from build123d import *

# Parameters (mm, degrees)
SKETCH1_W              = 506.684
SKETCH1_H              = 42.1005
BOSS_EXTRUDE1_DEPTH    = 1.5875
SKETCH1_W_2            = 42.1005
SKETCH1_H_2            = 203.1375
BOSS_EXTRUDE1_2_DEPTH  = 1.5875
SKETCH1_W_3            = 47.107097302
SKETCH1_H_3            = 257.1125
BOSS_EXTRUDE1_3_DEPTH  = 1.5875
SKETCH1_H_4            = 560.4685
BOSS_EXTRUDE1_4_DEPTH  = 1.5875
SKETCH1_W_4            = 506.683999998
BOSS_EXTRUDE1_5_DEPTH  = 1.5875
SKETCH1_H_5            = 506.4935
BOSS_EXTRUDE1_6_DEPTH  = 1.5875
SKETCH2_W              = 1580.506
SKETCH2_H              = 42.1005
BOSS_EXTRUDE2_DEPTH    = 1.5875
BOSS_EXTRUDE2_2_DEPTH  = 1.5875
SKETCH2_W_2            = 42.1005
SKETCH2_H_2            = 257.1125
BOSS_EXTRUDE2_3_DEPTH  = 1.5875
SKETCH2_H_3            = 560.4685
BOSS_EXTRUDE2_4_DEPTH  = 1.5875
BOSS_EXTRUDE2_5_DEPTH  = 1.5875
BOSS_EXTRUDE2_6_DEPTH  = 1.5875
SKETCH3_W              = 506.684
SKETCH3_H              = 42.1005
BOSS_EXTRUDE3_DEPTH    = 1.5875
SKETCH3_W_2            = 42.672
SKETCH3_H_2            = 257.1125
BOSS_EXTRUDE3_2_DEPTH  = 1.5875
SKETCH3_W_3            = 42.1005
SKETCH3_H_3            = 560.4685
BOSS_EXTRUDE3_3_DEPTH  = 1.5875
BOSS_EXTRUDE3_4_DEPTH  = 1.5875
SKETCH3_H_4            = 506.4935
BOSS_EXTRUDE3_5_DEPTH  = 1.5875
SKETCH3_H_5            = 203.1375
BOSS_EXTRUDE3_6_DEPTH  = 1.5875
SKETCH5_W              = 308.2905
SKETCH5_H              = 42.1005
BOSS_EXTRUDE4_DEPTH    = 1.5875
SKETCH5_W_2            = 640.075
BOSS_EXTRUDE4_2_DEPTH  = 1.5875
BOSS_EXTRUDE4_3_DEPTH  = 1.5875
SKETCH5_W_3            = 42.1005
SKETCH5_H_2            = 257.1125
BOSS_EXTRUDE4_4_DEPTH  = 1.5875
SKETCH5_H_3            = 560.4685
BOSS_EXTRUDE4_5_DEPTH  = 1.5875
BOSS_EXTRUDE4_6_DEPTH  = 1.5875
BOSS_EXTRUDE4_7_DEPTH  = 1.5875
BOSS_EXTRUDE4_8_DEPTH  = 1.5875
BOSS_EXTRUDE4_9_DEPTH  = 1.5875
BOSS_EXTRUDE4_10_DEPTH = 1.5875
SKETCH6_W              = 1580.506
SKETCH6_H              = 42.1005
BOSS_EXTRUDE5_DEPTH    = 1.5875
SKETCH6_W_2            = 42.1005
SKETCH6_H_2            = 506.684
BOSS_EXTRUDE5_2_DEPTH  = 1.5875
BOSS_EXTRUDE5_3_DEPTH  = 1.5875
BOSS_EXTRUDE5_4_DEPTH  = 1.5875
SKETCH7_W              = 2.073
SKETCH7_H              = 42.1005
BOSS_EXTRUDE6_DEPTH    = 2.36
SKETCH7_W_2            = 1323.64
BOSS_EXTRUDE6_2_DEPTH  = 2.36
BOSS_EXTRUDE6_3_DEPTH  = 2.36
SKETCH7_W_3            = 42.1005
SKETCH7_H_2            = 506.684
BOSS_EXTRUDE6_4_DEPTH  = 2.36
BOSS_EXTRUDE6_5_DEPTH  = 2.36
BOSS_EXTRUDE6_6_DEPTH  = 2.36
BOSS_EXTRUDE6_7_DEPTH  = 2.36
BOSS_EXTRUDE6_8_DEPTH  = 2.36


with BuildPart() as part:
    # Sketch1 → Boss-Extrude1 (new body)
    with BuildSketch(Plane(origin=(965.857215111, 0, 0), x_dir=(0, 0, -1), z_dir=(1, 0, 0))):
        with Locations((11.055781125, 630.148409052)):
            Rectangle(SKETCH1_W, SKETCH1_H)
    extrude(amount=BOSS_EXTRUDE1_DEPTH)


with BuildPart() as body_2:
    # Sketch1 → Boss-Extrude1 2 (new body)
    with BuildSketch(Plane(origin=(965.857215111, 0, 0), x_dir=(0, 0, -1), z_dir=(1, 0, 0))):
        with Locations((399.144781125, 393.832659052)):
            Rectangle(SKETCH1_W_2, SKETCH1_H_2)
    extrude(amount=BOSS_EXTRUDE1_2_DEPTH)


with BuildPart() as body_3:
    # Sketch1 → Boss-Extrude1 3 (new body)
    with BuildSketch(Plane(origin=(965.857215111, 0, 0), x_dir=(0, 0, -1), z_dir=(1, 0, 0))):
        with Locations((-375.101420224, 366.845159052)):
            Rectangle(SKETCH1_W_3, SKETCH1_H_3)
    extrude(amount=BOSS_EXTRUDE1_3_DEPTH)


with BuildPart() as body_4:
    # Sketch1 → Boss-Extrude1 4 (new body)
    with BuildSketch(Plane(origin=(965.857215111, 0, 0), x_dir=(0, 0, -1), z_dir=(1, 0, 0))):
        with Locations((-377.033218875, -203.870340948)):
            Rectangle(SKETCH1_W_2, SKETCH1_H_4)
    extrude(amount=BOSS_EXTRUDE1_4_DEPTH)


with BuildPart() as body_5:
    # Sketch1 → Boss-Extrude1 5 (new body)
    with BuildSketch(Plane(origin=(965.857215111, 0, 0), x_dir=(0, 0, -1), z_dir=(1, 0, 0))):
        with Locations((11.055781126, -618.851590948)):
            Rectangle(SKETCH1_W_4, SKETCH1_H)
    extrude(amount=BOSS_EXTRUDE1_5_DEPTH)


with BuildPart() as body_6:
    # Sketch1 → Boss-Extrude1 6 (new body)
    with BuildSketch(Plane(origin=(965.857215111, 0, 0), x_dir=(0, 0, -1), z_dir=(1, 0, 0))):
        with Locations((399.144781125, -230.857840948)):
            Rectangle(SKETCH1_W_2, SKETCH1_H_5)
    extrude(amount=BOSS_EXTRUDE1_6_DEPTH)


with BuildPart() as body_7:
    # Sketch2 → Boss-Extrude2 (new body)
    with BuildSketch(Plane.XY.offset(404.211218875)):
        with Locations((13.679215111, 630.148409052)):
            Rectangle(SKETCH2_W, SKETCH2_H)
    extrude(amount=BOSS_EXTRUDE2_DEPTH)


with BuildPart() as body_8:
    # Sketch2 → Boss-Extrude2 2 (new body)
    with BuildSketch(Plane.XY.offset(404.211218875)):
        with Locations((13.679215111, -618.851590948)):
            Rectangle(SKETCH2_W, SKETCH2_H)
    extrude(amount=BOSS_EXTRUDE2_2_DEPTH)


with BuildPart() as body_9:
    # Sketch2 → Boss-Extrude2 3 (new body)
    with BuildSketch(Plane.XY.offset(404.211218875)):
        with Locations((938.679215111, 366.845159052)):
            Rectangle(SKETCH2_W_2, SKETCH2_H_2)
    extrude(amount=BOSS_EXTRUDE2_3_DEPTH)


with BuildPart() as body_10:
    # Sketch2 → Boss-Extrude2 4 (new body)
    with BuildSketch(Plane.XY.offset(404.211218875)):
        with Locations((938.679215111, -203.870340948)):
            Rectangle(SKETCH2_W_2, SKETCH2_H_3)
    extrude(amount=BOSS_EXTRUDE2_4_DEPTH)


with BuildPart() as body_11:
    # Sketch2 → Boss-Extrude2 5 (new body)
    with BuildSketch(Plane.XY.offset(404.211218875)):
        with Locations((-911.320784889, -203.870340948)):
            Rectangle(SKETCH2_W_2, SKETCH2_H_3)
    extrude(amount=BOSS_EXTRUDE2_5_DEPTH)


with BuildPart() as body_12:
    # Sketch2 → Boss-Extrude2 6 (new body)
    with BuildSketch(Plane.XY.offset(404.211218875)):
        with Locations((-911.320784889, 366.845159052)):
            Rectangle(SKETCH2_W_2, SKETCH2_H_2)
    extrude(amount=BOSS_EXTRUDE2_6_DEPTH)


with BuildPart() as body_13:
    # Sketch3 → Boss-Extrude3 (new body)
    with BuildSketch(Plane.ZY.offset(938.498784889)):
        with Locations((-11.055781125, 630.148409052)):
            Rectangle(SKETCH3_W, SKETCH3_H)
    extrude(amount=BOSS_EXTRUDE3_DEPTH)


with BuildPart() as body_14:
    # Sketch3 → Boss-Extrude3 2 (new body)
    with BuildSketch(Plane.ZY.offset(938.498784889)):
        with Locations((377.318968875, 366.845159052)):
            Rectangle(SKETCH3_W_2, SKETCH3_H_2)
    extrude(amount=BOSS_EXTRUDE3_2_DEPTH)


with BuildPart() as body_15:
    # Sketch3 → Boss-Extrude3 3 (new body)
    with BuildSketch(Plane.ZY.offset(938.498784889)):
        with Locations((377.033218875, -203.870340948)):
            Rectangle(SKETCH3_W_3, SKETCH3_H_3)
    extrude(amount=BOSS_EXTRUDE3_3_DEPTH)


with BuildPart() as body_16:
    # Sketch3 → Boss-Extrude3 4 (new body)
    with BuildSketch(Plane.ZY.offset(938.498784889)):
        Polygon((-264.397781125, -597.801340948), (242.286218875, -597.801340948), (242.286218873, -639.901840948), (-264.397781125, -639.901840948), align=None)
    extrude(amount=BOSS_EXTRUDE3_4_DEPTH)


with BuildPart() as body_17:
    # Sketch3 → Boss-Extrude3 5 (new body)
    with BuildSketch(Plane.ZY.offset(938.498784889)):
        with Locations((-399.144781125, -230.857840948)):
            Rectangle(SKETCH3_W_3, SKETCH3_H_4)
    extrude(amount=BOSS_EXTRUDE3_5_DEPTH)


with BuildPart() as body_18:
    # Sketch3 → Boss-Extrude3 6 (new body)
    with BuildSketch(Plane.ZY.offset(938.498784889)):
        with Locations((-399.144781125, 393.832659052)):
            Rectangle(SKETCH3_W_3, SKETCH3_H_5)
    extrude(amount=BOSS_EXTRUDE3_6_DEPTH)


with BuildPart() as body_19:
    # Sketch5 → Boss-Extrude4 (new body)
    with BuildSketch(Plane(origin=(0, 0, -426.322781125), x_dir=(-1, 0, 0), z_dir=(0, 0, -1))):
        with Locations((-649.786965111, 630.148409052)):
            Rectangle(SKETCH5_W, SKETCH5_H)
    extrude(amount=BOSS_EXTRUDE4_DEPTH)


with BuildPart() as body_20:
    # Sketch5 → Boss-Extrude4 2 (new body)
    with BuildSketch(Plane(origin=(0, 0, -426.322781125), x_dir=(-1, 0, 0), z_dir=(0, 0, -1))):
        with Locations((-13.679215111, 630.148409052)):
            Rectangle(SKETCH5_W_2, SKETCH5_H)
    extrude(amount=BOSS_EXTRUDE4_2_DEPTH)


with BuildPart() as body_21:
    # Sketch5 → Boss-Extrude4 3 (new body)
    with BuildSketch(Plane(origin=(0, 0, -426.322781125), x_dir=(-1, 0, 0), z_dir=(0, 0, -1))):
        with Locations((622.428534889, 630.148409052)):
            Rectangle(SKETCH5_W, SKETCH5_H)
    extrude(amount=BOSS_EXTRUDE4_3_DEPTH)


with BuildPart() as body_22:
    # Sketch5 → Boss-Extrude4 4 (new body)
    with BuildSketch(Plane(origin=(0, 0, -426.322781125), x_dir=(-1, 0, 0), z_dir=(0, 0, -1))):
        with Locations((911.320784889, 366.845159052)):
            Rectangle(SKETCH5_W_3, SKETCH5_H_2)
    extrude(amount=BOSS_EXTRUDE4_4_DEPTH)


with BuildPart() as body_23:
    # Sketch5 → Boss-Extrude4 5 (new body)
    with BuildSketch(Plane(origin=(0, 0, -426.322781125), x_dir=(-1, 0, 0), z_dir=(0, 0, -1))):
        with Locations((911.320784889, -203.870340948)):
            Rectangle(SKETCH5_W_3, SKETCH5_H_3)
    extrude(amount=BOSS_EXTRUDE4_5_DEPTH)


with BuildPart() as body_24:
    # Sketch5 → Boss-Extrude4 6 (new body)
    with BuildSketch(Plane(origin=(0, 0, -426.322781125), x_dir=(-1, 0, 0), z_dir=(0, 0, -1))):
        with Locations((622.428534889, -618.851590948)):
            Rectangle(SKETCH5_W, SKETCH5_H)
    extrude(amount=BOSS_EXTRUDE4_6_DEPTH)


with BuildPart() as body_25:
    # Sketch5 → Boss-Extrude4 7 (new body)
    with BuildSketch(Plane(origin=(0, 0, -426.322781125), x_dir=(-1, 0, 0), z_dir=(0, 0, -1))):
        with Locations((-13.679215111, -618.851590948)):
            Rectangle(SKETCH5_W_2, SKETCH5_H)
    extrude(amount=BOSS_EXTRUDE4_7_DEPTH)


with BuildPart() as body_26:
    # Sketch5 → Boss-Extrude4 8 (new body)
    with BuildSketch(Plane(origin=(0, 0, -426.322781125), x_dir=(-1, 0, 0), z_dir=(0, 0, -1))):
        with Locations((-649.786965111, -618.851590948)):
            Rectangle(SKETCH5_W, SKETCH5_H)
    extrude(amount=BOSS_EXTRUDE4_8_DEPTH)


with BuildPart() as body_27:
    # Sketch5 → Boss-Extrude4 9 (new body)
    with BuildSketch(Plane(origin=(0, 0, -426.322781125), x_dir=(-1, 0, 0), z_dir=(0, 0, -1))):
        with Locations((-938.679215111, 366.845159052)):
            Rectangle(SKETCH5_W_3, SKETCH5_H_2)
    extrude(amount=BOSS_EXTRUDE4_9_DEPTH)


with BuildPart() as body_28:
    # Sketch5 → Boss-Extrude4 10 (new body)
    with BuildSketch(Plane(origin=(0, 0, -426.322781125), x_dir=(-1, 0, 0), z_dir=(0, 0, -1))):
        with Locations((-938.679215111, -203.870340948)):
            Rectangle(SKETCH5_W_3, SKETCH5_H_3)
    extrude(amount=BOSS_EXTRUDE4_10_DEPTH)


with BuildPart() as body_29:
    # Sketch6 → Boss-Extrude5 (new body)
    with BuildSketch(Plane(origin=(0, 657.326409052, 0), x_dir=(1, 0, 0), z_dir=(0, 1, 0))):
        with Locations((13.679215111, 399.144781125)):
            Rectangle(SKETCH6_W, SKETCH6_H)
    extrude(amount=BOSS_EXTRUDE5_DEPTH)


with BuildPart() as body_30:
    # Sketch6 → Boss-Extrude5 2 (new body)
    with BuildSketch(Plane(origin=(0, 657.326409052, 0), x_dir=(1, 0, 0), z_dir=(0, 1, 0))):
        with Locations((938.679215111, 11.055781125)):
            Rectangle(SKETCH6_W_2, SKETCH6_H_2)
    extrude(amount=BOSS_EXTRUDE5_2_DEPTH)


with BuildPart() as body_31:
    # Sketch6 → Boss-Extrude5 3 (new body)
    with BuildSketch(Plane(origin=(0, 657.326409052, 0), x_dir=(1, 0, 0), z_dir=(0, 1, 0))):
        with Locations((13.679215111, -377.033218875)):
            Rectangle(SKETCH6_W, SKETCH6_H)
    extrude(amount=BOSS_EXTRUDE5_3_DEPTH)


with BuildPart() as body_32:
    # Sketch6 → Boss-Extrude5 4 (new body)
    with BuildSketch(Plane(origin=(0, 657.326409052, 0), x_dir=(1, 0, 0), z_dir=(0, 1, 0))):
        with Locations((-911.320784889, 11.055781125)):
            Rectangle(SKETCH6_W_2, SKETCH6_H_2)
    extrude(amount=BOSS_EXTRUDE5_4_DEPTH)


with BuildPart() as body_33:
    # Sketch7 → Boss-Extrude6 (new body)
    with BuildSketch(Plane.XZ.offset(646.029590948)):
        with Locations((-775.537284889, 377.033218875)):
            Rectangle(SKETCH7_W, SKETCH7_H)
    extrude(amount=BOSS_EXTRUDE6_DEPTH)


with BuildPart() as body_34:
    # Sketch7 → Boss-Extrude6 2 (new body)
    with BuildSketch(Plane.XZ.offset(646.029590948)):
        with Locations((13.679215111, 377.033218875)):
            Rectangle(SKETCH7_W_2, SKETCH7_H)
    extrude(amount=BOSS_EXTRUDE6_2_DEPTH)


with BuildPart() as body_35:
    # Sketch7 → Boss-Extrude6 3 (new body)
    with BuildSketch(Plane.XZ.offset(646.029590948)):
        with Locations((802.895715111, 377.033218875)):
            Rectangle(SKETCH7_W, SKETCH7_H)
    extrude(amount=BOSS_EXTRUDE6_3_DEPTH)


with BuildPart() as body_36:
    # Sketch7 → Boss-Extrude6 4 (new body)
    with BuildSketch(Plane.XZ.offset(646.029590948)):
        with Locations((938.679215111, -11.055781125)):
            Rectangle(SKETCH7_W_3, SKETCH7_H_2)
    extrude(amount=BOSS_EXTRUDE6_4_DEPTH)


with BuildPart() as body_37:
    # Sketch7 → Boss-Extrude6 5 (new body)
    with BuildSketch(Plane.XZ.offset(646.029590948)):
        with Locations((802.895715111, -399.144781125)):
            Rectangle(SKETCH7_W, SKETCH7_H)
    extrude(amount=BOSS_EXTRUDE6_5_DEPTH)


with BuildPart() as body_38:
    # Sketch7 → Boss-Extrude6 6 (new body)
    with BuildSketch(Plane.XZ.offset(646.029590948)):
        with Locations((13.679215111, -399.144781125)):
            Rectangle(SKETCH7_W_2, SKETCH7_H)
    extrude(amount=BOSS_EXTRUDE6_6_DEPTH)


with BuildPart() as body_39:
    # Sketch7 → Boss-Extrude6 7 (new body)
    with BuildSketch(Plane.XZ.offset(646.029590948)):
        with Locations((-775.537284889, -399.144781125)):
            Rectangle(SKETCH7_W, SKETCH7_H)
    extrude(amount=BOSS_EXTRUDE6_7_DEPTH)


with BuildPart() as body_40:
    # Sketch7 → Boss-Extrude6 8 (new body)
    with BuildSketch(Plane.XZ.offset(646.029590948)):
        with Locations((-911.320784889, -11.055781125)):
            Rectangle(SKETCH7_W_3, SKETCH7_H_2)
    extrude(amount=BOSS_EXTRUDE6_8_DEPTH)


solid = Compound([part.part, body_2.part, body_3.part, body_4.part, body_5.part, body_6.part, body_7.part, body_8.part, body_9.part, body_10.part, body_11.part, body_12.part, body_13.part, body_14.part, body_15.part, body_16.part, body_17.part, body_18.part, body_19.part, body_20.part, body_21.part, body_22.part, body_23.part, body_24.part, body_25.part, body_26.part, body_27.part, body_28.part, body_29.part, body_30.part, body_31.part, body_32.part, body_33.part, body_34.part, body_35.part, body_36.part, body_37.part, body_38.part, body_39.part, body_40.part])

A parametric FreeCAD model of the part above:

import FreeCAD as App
import Part
import Sketcher

V = App.Vector
Q = App.Units.Quantity


def add_polygon(sketch, points):
    """Adds a closed chain of lines whose ends are joined by coincident constraints."""
    first, n = sketch.GeometryCount, len(points)
    for a, b in zip(points, points[1:] + points[:1]):
        sketch.addGeometry(Part.LineSegment(App.Vector(*a, 0), App.Vector(*b, 0)), False)
    for i in range(n):
        sketch.addConstraint(Sketcher.Constraint("Coincident", first + i, 2, first + (i + 1) % n, 1))

doc = App.newDocument("Part")
body = doc.addObject("PartDesign::Body", "Body")

# Sketch on YZ plane
sketch1 = body.newObject("Sketcher::SketchObject", "Sketch")
sketch1.AttachmentSupport = (doc.getObject("YZ_Plane"), [""])
sketch1.MapMode = "FlatFace"
sketch1.AttachmentOffset = App.Placement(V(0, 0, 965.857215), App.Rotation())
add_polygon(sketch1, [(651.198659, 242.286219), (609.098159, 242.286219), (609.098159, -264.397781), (651.198659, -264.397781)])  # lines 0-3
sketch1.addConstraint([
    Sketcher.Constraint("Horizontal", 0),
    Sketcher.Constraint("Vertical", 1),
    Sketcher.Constraint("Horizontal", 2),
    Sketcher.Constraint("Vertical", 3),
    Sketcher.Constraint("DistanceX", 0, 2, 0, 1, Q("1.6575 in")),
    Sketcher.Constraint("DistanceY", 1, 2, 1, 1, Q("506.684 mm")),
    Sketcher.Constraint("DistanceX", -1, 1, 0, 2, Q("609.098159 mm")),
    Sketcher.Constraint("DistanceY", -1, 1, 0, 2, Q("242.286219 mm")),
])
pad1 = body.newObject("PartDesign::Pad", "Pad")
pad1.Profile = sketch1
pad1.Length = Q("0.0625 in")
body2 = doc.addObject("PartDesign::Body", "Body001")

# Sketch on YZ plane
sketch2 = body2.newObject("Sketcher::SketchObject", "Sketch001")
sketch2.AttachmentSupport = (doc.getObject("YZ_Plane001"), [""])
sketch2.MapMode = "FlatFace"
sketch2.AttachmentOffset = App.Placement(V(0, 0, 965.857215), App.Rotation())
add_polygon(sketch2, [(495.401409, -378.094531), (292.263909, -378.094531), (292.263909, -420.195031), (495.401409, -420.195031)])  # lines 0-3
sketch2.addConstraint([
    Sketcher.Constraint("Horizontal", 0),
    Sketcher.Constraint("Vertical", 1),
    Sketcher.Constraint("Horizontal", 2),
    Sketcher.Constraint("Vertical", 3),
    Sketcher.Constraint("DistanceY", 1, 2, 1, 1, Q("1.6575 in")),
    Sketcher.Constraint("DistanceX", 0, 2, 0, 1, Q("203.1375 mm")),
    Sketcher.Constraint("DistanceX", -1, 1, 0, 2, Q("292.263909 mm")),
    Sketcher.Constraint("DistanceY", 0, 2, -1, 1, Q("378.094531 mm")),
])
pad2 = body2.newObject("PartDesign::Pad", "Pad001")
pad2.Profile = sketch2
pad2.Length = Q("0.0625 in")
body3 = doc.addObject("PartDesign::Body", "Body002")

# Sketch on YZ plane
sketch3 = body3.newObject("Sketcher::SketchObject", "Sketch002")
sketch3.AttachmentSupport = (doc.getObject("YZ_Plane002"), [""])
sketch3.MapMode = "FlatFace"
sketch3.AttachmentOffset = App.Placement(V(0, 0, 965.857215), App.Rotation())
add_polygon(sketch3, [(495.401409, 398.654969), (238.288909, 398.654969), (238.288909, 351.547872), (495.401409, 351.547872)])  # lines 0-3
sketch3.addConstraint([
    Sketcher.Constraint("Horizontal", 0),
    Sketcher.Constraint("Vertical", 1),
    Sketcher.Constraint("Horizontal", 2),
    Sketcher.Constraint("Vertical", 3),
    Sketcher.Constraint("DistanceX", 0, 2, 0, 1, Q("257.1125 mm")),
    Sketcher.Constraint("DistanceY", 1, 2, 1, 1, Q("47.107097 mm")),
    Sketcher.Constraint("DistanceX", -1, 1, 0, 2, Q("238.288909 mm")),
    Sketcher.Constraint("DistanceY", -1, 1, 0, 2, Q("398.654969 mm")),
])
pad3 = body3.newObject("PartDesign::Pad", "Pad002")
pad3.Profile = sketch3
pad3.Length = Q("0.0625 in")
body4 = doc.addObject("PartDesign::Body", "Body003")

# Sketch on YZ plane
sketch4 = body4.newObject("Sketcher::SketchObject", "Sketch003")
sketch4.AttachmentSupport = (doc.getObject("YZ_Plane003"), [""])
sketch4.MapMode = "FlatFace"
sketch4.AttachmentOffset = App.Placement(V(0, 0, 965.857215), App.Rotation())
add_polygon(sketch4, [(76.363909, 398.083469), (-484.104591, 398.083469), (-484.104591, 355.982969), (76.363909, 355.982969)])  # lines 0-3
sketch4.addConstraint([
    Sketcher.Constraint("Horizontal", 0),
    Sketcher.Constraint("Vertical", 1),
    Sketcher.Constraint("Horizontal", 2),
    Sketcher.Constraint("Vertical", 3),
    Sketcher.Constraint("DistanceY", 1, 2, 1, 1, Q("1.6575 in")),
    Sketcher.Constraint("DistanceX", 0, 2, 0, 1, Q("560.4685 mm")),
    Sketcher.Constraint("DistanceX", 0, 2, -1, 1, Q("484.104591 mm")),
    Sketcher.Constraint("DistanceY", -1, 1, 0, 2, Q("398.083469 mm")),
])
pad4 = body4.newObject("PartDesign::Pad", "Pad003")
pad4.Profile = sketch4
pad4.Length = Q("0.0625 in")
body5 = doc.addObject("PartDesign::Body", "Body004")

# Sketch on YZ plane
sketch5 = body5.newObject("Sketcher::SketchObject", "Sketch004")
sketch5.AttachmentSupport = (doc.getObject("YZ_Plane004"), [""])
sketch5.MapMode = "FlatFace"
sketch5.AttachmentOffset = App.Placement(V(0, 0, 965.857215), App.Rotation())
add_polygon(sketch5, [(-597.801341, 242.286219), (-639.901841, 242.286219), (-639.901841, -264.397781), (-597.801341, -264.397781)])  # lines 0-3
sketch5.addConstraint([
    Sketcher.Constraint("Horizontal", 0),
    Sketcher.Constraint("Vertical", 1),
    Sketcher.Constraint("Horizontal", 2),
    Sketcher.Constraint("Vertical", 3),
    Sketcher.Constraint("DistanceX", 0, 2, 0, 1, Q("1.6575 in")),
    Sketcher.Constraint("DistanceY", 1, 2, 1, 1, Q("506.684 mm")),
    Sketcher.Constraint("DistanceX", 0, 2, -1, 1, Q("639.901841 mm")),
    Sketcher.Constraint("DistanceY", -1, 1, 0, 2, Q("242.286219 mm")),
])
pad5 = body5.newObject("PartDesign::Pad", "Pad004")
pad5.Profile = sketch5
pad5.Length = Q("0.0625 in")
body6 = doc.addObject("PartDesign::Body", "Body005")

# Sketch on YZ plane
sketch6 = body6.newObject("Sketcher::SketchObject", "Sketch005")
sketch6.AttachmentSupport = (doc.getObject("YZ_Plane005"), [""])
sketch6.MapMode = "FlatFace"
sketch6.AttachmentOffset = App.Placement(V(0, 0, 965.857215), App.Rotation())
add_polygon(sketch6, [(22.388909, -378.094531), (-484.104591, -378.094531), (-484.104591, -420.195031), (22.388909, -420.195031)])  # lines 0-3
sketch6.addConstraint([
    Sketcher.Constraint("Horizontal", 0),
    Sketcher.Constraint("Vertical", 1),
    Sketcher.Constraint("Horizontal", 2),
    Sketcher.Constraint("Vertical", 3),
    Sketcher.Constraint("DistanceY", 1, 2, 1, 1, Q("1.6575 in")),
    Sketcher.Constraint("DistanceX", 0, 2, 0, 1, Q("506.4935 mm")),
    Sketcher.Constraint("DistanceX", 0, 2, -1, 1, Q("484.104591 mm")),
    Sketcher.Constraint("DistanceY", 0, 2, -1, 1, Q("378.094531 mm")),
])
pad6 = body6.newObject("PartDesign::Pad", "Pad005")
pad6.Profile = sketch6
pad6.Length = Q("0.0625 in")
body7 = doc.addObject("PartDesign::Body", "Body006")

# Sketch on XY plane
sketch7 = body7.newObject("Sketcher::SketchObject", "Sketch006")
sketch7.AttachmentSupport = (doc.getObject("XY_Plane006"), [""])
sketch7.MapMode = "FlatFace"
sketch7.AttachmentOffset = App.Placement(V(0, 0, 404.211219), App.Rotation())
add_polygon(sketch7, [(-776.573785, 651.198659), (-776.573785, 609.098159), (803.932215, 609.098159), (803.932215, 651.198659)])  # lines 0-3
sketch7.addConstraint([
    Sketcher.Constraint("Vertical", 0),
    Sketcher.Constraint("Horizontal", 1),
    Sketcher.Constraint("Vertical", 2),
    Sketcher.Constraint("Horizontal", 3),
    Sketcher.Constraint("DistanceY", 0, 2, 0, 1, Q("1.6575 in")),
    Sketcher.Constraint("DistanceX", 1, 1, 1, 2, Q("1580.506 mm")),
    Sketcher.Constraint("DistanceY", -1, 1, 0, 2, Q("609.098159 mm")),
    Sketcher.Constraint("DistanceX", 0, 2, -1, 1, Q("776.573785 mm")),
])
pad7 = body7.newObject("PartDesign::Pad", "Pad006")
pad7.Profile = sketch7
pad7.Length = Q("0.0625 in")
body8 = doc.addObject("PartDesign::Body", "Body007")

# Sketch on XY plane
sketch8 = body8.newObject("Sketcher::SketchObject", "Sketch007")
sketch8.AttachmentSupport = (doc.getObject("XY_Plane007"), [""])
sketch8.MapMode = "FlatFace"
sketch8.AttachmentOffset = App.Placement(V(0, 0, 404.211219), App.Rotation())
add_polygon(sketch8, [(-776.573785, -597.801341), (-776.573785, -639.901841), (803.932215, -639.901841), (803.932215, -597.801341)])  # lines 0-3
sketch8.addConstraint([
    Sketcher.Constraint("Vertical", 0),
    Sketcher.Constraint("Horizontal", 1),
    Sketcher.Constraint("Vertical", 2),
    Sketcher.Constraint("Horizontal", 3),
    Sketcher.Constraint("DistanceY", 0, 2, 0, 1, Q("1.6575 in")),
    Sketcher.Constraint("DistanceX", 1, 1, 1, 2, Q("1580.506 mm")),
    Sketcher.Constraint("DistanceY", 0, 2, -1, 1, Q("639.901841 mm")),
    Sketcher.Constraint("DistanceX", 0, 2, -1, 1, Q("776.573785 mm")),
])
pad8 = body8.newObject("PartDesign::Pad", "Pad007")
pad8.Profile = sketch8
pad8.Length = Q("0.0625 in")
body9 = doc.addObject("PartDesign::Body", "Body008")

# Sketch on XY plane
sketch9 = body9.newObject("Sketcher::SketchObject", "Sketch008")
sketch9.AttachmentSupport = (doc.getObject("XY_Plane008"), [""])
sketch9.MapMode = "FlatFace"
sketch9.AttachmentOffset = App.Placement(V(0, 0, 404.211219), App.Rotation())
add_polygon(sketch9, [(917.628965, 495.401409), (917.628965, 238.288909), (959.729465, 238.288909), (959.729465, 495.401409)])  # lines 0-3
sketch9.addConstraint([
    Sketcher.Constraint("Vertical", 0),
    Sketcher.Constraint("Horizontal", 1),
    Sketcher.Constraint("Vertical", 2),
    Sketcher.Constraint("Horizontal", 3),
    Sketcher.Constraint("DistanceX", 1, 1, 1, 2, Q("1.6575 in")),
    Sketcher.Constraint("DistanceY", 0, 2, 0, 1, Q("257.1125 mm")),
    Sketcher.Constraint("DistanceY", -1, 1, 0, 2, Q("238.288909 mm")),
    Sketcher.Constraint("DistanceX", -1, 1, 0, 2, Q("917.628965 mm")),
])
pad9 = body9.newObject("PartDesign::Pad", "Pad008")
pad9.Profile = sketch9
pad9.Length = Q("0.0625 in")
body10 = doc.addObject("PartDesign::Body", "Body009")

# Sketch on XY plane
sketch10 = body10.newObject("Sketcher::SketchObject", "Sketch009")
sketch10.AttachmentSupport = (doc.getObject("XY_Plane009"), [""])
sketch10.MapMode = "FlatFace"
sketch10.AttachmentOffset = App.Placement(V(0, 0, 404.211219), App.Rotation())
add_polygon(sketch10, [(917.628965, 76.363909), (917.628965, -484.104591), (959.729465, -484.104591), (959.729465, 76.363909)])  # lines 0-3
sketch10.addConstraint([
    Sketcher.Constraint("Vertical", 0),
    Sketcher.Constraint("Horizontal", 1),
    Sketcher.Constraint("Vertical", 2),
    Sketcher.Constraint("Horizontal", 3),
    Sketcher.Constraint("DistanceX", 1, 1, 1, 2, Q("1.6575 in")),
    Sketcher.Constraint("DistanceY", 0, 2, 0, 1, Q("560.4685 mm")),
    Sketcher.Constraint("DistanceY", 0, 2, -1, 1, Q("484.104591 mm")),
    Sketcher.Constraint("DistanceX", -1, 1, 0, 2, Q("917.628965 mm")),
])
pad10 = body10.newObject("PartDesign::Pad", "Pad009")
pad10.Profile = sketch10
pad10.Length = Q("0.0625 in")
body11 = doc.addObject("PartDesign::Body", "Body010")

# Sketch on XY plane
sketch11 = body11.newObject("Sketcher::SketchObject", "Sketch010")
sketch11.AttachmentSupport = (doc.getObject("XY_Plane010"), [""])
sketch11.MapMode = "FlatFace"
sketch11.AttachmentOffset = App.Placement(V(0, 0, 404.211219), App.Rotation())
add_polygon(sketch11, [(-932.371035, 76.363909), (-932.371035, -484.104591), (-890.270535, -484.104591), (-890.270535, 76.363909)])  # lines 0-3
sketch11.addConstraint([
    Sketcher.Constraint("Vertical", 0),
    Sketcher.Constraint("Horizontal", 1),
    Sketcher.Constraint("Vertical", 2),
    Sketcher.Constraint("Horizontal", 3),
    Sketcher.Constraint("DistanceX", 1, 1, 1, 2, Q("1.6575 in")),
    Sketcher.Constraint("DistanceY", 0, 2, 0, 1, Q("560.4685 mm")),
    Sketcher.Constraint("DistanceY", 0, 2, -1, 1, Q("484.104591 mm")),
    Sketcher.Constraint("DistanceX", 0, 2, -1, 1, Q("932.371035 mm")),
])
pad11 = body11.newObject("PartDesign::Pad", "Pad010")
pad11.Profile = sketch11
pad11.Length = Q("0.0625 in")
body12 = doc.addObject("PartDesign::Body", "Body011")

# Sketch on XY plane
sketch12 = body12.newObject("Sketcher::SketchObject", "Sketch011")
sketch12.AttachmentSupport = (doc.getObject("XY_Plane011"), [""])
sketch12.MapMode = "FlatFace"
sketch12.AttachmentOffset = App.Placement(V(0, 0, 404.211219), App.Rotation())
add_polygon(sketch12, [(-932.371035, 495.401409), (-932.371035, 238.288909), (-890.270535, 238.288909), (-890.270535, 495.401409)])  # lines 0-3
sketch12.addConstraint([
    Sketcher.Constraint("Vertical", 0),
    Sketcher.Constraint("Horizontal", 1),
    Sketcher.Constraint("Vertical", 2),
    Sketcher.Constraint("Horizontal", 3),
    Sketcher.Constraint("DistanceX", 1, 1, 1, 2, Q("1.6575 in")),
    Sketcher.Constraint("DistanceY", 0, 2, 0, 1, Q("257.1125 mm")),
    Sketcher.Constraint("DistanceY", -1, 1, 0, 2, Q("238.288909 mm")),
    Sketcher.Constraint("DistanceX", 0, 2, -1, 1, Q("932.371035 mm")),
])
pad12 = body12.newObject("PartDesign::Pad", "Pad011")
pad12.Profile = sketch12
pad12.Length = Q("0.0625 in")
body13 = doc.addObject("PartDesign::Body", "Body012")

# Sketch on YZ plane
sketch13 = body13.newObject("Sketcher::SketchObject", "Sketch012")
sketch13.AttachmentSupport = (doc.getObject("YZ_Plane012"), [""])
sketch13.MapMode = "FlatFace"
sketch13.AttachmentOffset = App.Placement(V(0, 0, -938.498785), App.Rotation())
add_polygon(sketch13, [(651.198659, -264.397781), (609.098159, -264.397781), (609.098159, 242.286219), (651.198659, 242.286219)])  # lines 0-3
sketch13.addConstraint([
    Sketcher.Constraint("Horizontal", 0),
    Sketcher.Constraint("Vertical", 1),
    Sketcher.Constraint("Horizontal", 2),
    Sketcher.Constraint("Vertical", 3),
    Sketcher.Constraint("DistanceX", 0, 2, 0, 1, Q("1.6575 in")),
    Sketcher.Constraint("DistanceY", 1, 1, 1, 2, Q("506.684 mm")),
    Sketcher.Constraint("DistanceX", -1, 1, 0, 2, Q("609.098159 mm")),
    Sketcher.Constraint("DistanceY", 0, 2, -1, 1, Q("264.397781 mm")),
])
pad13 = body13.newObject("PartDesign::Pad", "Pad012")
pad13.Profile = sketch13
pad13.Length = Q("0.0625 in")
pad13.Reversed = True
body14 = doc.addObject("PartDesign::Body", "Body013")

# Sketch on YZ plane
sketch14 = body14.newObject("Sketcher::SketchObject", "Sketch013")
sketch14.AttachmentSupport = (doc.getObject("YZ_Plane013"), [""])
sketch14.MapMode = "FlatFace"
sketch14.AttachmentOffset = App.Placement(V(0, 0, -938.498785), App.Rotation())
add_polygon(sketch14, [(495.401409, 355.982969), (238.288909, 355.982969), (238.288909, 398.654969), (495.401409, 398.654969)])  # lines 0-3
sketch14.addConstraint([
    Sketcher.Constraint("Horizontal", 0),
    Sketcher.Constraint("Vertical", 1),
    Sketcher.Constraint("Horizontal", 2),
    Sketcher.Constraint("Vertical", 3),
    Sketcher.Constraint("DistanceY", 1, 1, 1, 2, Q("1.68 in")),
    Sketcher.Constraint("DistanceX", 0, 2, 0, 1, Q("257.1125 mm")),
    Sketcher.Constraint("DistanceX", -1, 1, 0, 2, Q("238.288909 mm")),
    Sketcher.Constraint("DistanceY", -1, 1, 0, 2, Q("355.982969 mm")),
])
pad14 = body14.newObject("PartDesign::Pad", "Pad013")
pad14.Profile = sketch14
pad14.Length = Q("0.0625 in")
pad14.Reversed = True
body15 = doc.addObject("PartDesign::Body", "Body014")

# Sketch on YZ plane
sketch15 = body15.newObject("Sketcher::SketchObject", "Sketch014")
sketch15.AttachmentSupport = (doc.getObject("YZ_Plane014"), [""])
sketch15.MapMode = "FlatFace"
sketch15.AttachmentOffset = App.Placement(V(0, 0, -938.498785), App.Rotation())
add_polygon(sketch15, [(76.363909, 355.982969), (-484.104591, 355.982969), (-484.104591, 398.083469), (76.363909, 398.083469)])  # lines 0-3
sketch15.addConstraint([
    Sketcher.Constraint("Horizontal", 0),
    Sketcher.Constraint("Vertical", 1),
    Sketcher.Constraint("Horizontal", 2),
    Sketcher.Constraint("Vertical", 3),
    Sketcher.Constraint("DistanceY", 1, 1, 1, 2, Q("1.6575 in")),
    Sketcher.Constraint("DistanceX", 0, 2, 0, 1, Q("560.4685 mm")),
    Sketcher.Constraint("DistanceX", 0, 2, -1, 1, Q("484.104591 mm")),
    Sketcher.Constraint("DistanceY", -1, 1, 0, 2, Q("355.982969 mm")),
])
pad15 = body15.newObject("PartDesign::Pad", "Pad014")
pad15.Profile = sketch15
pad15.Length = Q("0.0625 in")
pad15.Reversed = True
body16 = doc.addObject("PartDesign::Body", "Body015")

# Sketch on YZ plane
sketch16 = body16.newObject("Sketcher::SketchObject", "Sketch015")
sketch16.AttachmentSupport = (doc.getObject("YZ_Plane015"), [""])
sketch16.MapMode = "FlatFace"
sketch16.AttachmentOffset = App.Placement(V(0, 0, -938.498785), App.Rotation())
add_polygon(sketch16, [(-597.801341, 242.286219), (-597.801341, -264.397781), (-639.901841, -264.397781), (-639.901841, 242.286219)])  # lines 0-3
sketch16.addConstraint([
    Sketcher.Constraint("Vertical", 0),
    Sketcher.Constraint("Horizontal", 1),
    Sketcher.Constraint("Vertical", 2),
    Sketcher.Constraint("Horizontal", 3),
    Sketcher.Constraint("DistanceX", 1, 2, 1, 1, Q("1.6575 in")),
    Sketcher.Constraint("DistanceY", 0, 2, 0, 1, Q("506.684 mm")),
    Sketcher.Constraint("DistanceX", 0, 2, -1, 1, Q("597.801341 mm")),
    Sketcher.Constraint("DistanceY", 0, 2, -1, 1, Q("264.397781 mm")),
])
pad16 = body16.newObject("PartDesign::Pad", "Pad015")
pad16.Profile = sketch16
pad16.Length = Q("0.0625 in")
pad16.Reversed = True
body17 = doc.addObject("PartDesign::Body", "Body016")

# Sketch on YZ plane
sketch17 = body17.newObject("Sketcher::SketchObject", "Sketch016")
sketch17.AttachmentSupport = (doc.getObject("YZ_Plane016"), [""])
sketch17.MapMode = "FlatFace"
sketch17.AttachmentOffset = App.Placement(V(0, 0, -938.498785), App.Rotation())
add_polygon(sketch17, [(22.388909, -420.195031), (-484.104591, -420.195031), (-484.104591, -378.094531), (22.388909, -378.094531)])  # lines 0-3
sketch17.addConstraint([
    Sketcher.Constraint("Horizontal", 0),
    Sketcher.Constraint("Vertical", 1),
    Sketcher.Constraint("Horizontal", 2),
    Sketcher.Constraint("Vertical", 3),
    Sketcher.Constraint("DistanceY", 1, 1, 1, 2, Q("1.6575 in")),
    Sketcher.Constraint("DistanceX", 0, 2, 0, 1, Q("506.4935 mm")),
    Sketcher.Constraint("DistanceX", 0, 2, -1, 1, Q("484.104591 mm")),
    Sketcher.Constraint("DistanceY", 0, 2, -1, 1, Q("420.195031 mm")),
])
pad17 = body17.newObject("PartDesign::Pad", "Pad016")
pad17.Profile = sketch17
pad17.Length = Q("0.0625 in")
pad17.Reversed = True
body18 = doc.addObject("PartDesign::Body", "Body017")

# Sketch on YZ plane
sketch18 = body18.newObject("Sketcher::SketchObject", "Sketch017")
sketch18.AttachmentSupport = (doc.getObject("YZ_Plane017"), [""])
sketch18.MapMode = "FlatFace"
sketch18.AttachmentOffset = App.Placement(V(0, 0, -938.498785), App.Rotation())
add_polygon(sketch18, [(495.401409, -420.195031), (292.263909, -420.195031), (292.263909, -378.094531), (495.401409, -378.094531)])  # lines 0-3
sketch18.addConstraint([
    Sketcher.Constraint("Horizontal", 0),
    Sketcher.Constraint("Vertical", 1),
    Sketcher.Constraint("Horizontal", 2),
    Sketcher.Constraint("Vertical", 3),
    Sketcher.Constraint("DistanceY", 1, 1, 1, 2, Q("1.6575 in")),
    Sketcher.Constraint("DistanceX", 0, 2, 0, 1, Q("203.1375 mm")),
    Sketcher.Constraint("DistanceX", -1, 1, 0, 2, Q("292.263909 mm")),
    Sketcher.Constraint("DistanceY", 0, 2, -1, 1, Q("420.195031 mm")),
])
pad18 = body18.newObject("PartDesign::Pad", "Pad017")
pad18.Profile = sketch18
pad18.Length = Q("0.0625 in")
pad18.Reversed = True
body19 = doc.addObject("PartDesign::Body", "Body018")

# Sketch on XY plane
sketch19 = body19.newObject("Sketcher::SketchObject", "Sketch018")
sketch19.AttachmentSupport = (doc.getObject("XY_Plane018"), [""])
sketch19.MapMode = "FlatFace"
sketch19.AttachmentOffset = App.Placement(V(0, 0, -426.322781), App.Rotation())
add_polygon(sketch19, [(803.932215, 651.198659), (803.932215, 609.098159), (495.641715, 609.098159), (495.641715, 651.198659)])  # lines 0-3
sketch19.addConstraint([
    Sketcher.Constraint("Vertical", 0),
    Sketcher.Constraint("Horizontal", 1),
    Sketcher.Constraint("Vertical", 2),
    Sketcher.Constraint("Horizontal", 3),
    Sketcher.Constraint("DistanceY", 0, 2, 0, 1, Q("1.6575 in")),
    Sketcher.Constraint("DistanceX", 1, 2, 1, 1, Q("308.2905 mm")),
    Sketcher.Constraint("DistanceY", -1, 1, 0, 2, Q("609.098159 mm")),
    Sketcher.Constraint("DistanceX", -1, 1, 0, 2, Q("803.932215 mm")),
])
pad19 = body19.newObject("PartDesign::Pad", "Pad018")
pad19.Profile = sketch19
pad19.Length = Q("0.0625 in")
pad19.Reversed = True
body20 = doc.addObject("PartDesign::Body", "Body019")

# Sketch on XY plane
sketch20 = body20.newObject("Sketcher::SketchObject", "Sketch019")
sketch20.AttachmentSupport = (doc.getObject("XY_Plane019"), [""])
sketch20.MapMode = "FlatFace"
sketch20.AttachmentOffset = App.Placement(V(0, 0, -426.322781), App.Rotation())
add_polygon(sketch20, [(333.716715, 651.198659), (333.716715, 609.098159), (-306.358285, 609.098159), (-306.358285, 651.198659)])  # lines 0-3
sketch20.addConstraint([
    Sketcher.Constraint("Vertical", 0),
    Sketcher.Constraint("Horizontal", 1),
    Sketcher.Constraint("Vertical", 2),
    Sketcher.Constraint("Horizontal", 3),
    Sketcher.Constraint("DistanceY", 0, 2, 0, 1, Q("1.6575 in")),
    Sketcher.Constraint("DistanceX", 1, 2, 1, 1, Q("640.075 mm")),
    Sketcher.Constraint("DistanceY", -1, 1, 0, 2, Q("609.098159 mm")),
    Sketcher.Constraint("DistanceX", -1, 1, 0, 2, Q("333.716715 mm")),
])
pad20 = body20.newObject("PartDesign::Pad", "Pad019")
pad20.Profile = sketch20
pad20.Length = Q("0.0625 in")
pad20.Reversed = True
body21 = doc.addObject("PartDesign::Body", "Body020")

# Sketch on XY plane
sketch21 = body21.newObject("Sketcher::SketchObject", "Sketch020")
sketch21.AttachmentSupport = (doc.getObject("XY_Plane020"), [""])
sketch21.MapMode = "FlatFace"
sketch21.AttachmentOffset = App.Placement(V(0, 0, -426.322781), App.Rotation())
add_polygon(sketch21, [(-468.283285, 651.198659), (-468.283285, 609.098159), (-776.573785, 609.098159), (-776.573785, 651.198659)])  # lines 0-3
sketch21.addConstraint([
    Sketcher.Constraint("Vertical", 0),
    Sketcher.Constraint("Horizontal", 1),
    Sketcher.Constraint("Vertical", 2),
    Sketcher.Constraint("Horizontal", 3),
    Sketcher.Constraint("DistanceY", 0, 2, 0, 1, Q("1.6575 in")),
    Sketcher.Constraint("DistanceX", 1, 2, 1, 1, Q("308.2905 mm")),
    Sketcher.Constraint("DistanceY", -1, 1, 0, 2, Q("609.098159 mm")),
    Sketcher.Constraint("DistanceX", 0, 2, -1, 1, Q("468.283285 mm")),
])
pad21 = body21.newObject("PartDesign::Pad", "Pad020")
pad21.Profile = sketch21
pad21.Length = Q("0.0625 in")
pad21.Reversed = True
body22 = doc.addObject("PartDesign::Body", "Body021")

# Sketch on XY plane
sketch22 = body22.newObject("Sketcher::SketchObject", "Sketch021")
sketch22.AttachmentSupport = (doc.getObject("XY_Plane021"), [""])
sketch22.MapMode = "FlatFace"
sketch22.AttachmentOffset = App.Placement(V(0, 0, -426.322781), App.Rotation())
add_polygon(sketch22, [(-890.270535, 495.401409), (-890.270535, 238.288909), (-932.371035, 238.288909), (-932.371035, 495.401409)])  # lines 0-3
sketch22.addConstraint([
    Sketcher.Constraint("Vertical", 0),
    Sketcher.Constraint("Horizontal", 1),
    Sketcher.Constraint("Vertical", 2),
    Sketcher.Constraint("Horizontal", 3),
    Sketcher.Constraint("DistanceX", 1, 2, 1, 1, Q("1.6575 in")),
    Sketcher.Constraint("DistanceY", 0, 2, 0, 1, Q("257.1125 mm")),
    Sketcher.Constraint("DistanceY", -1, 1, 0, 2, Q("238.288909 mm")),
    Sketcher.Constraint("DistanceX", 0, 2, -1, 1, Q("890.270535 mm")),
])
pad22 = body22.newObject("PartDesign::Pad", "Pad021")
pad22.Profile = sketch22
pad22.Length = Q("0.0625 in")
pad22.Reversed = True
body23 = doc.addObject("PartDesign::Body", "Body022")

# Sketch on XY plane
sketch23 = body23.newObject("Sketcher::SketchObject", "Sketch022")
sketch23.AttachmentSupport = (doc.getObject("XY_Plane022"), [""])
sketch23.MapMode = "FlatFace"
sketch23.AttachmentOffset = App.Placement(V(0, 0, -426.322781), App.Rotation())
add_polygon(sketch23, [(-890.270535, 76.363909), (-890.270535, -484.104591), (-932.371035, -484.104591), (-932.371035, 76.363909)])  # lines 0-3
sketch23.addConstraint([
    Sketcher.Constraint("Vertical", 0),
    Sketcher.Constraint("Horizontal", 1),
    Sketcher.Constraint("Vertical", 2),
    Sketcher.Constraint("Horizontal", 3),
    Sketcher.Constraint("DistanceX", 1, 2, 1, 1, Q("1.6575 in")),
    Sketcher.Constraint("DistanceY", 0, 2, 0, 1, Q("560.4685 mm")),
    Sketcher.Constraint("DistanceY", 0, 2, -1, 1, Q("484.104591 mm")),
    Sketcher.Constraint("DistanceX", 0, 2, -1, 1, Q("890.270535 mm")),
])
pad23 = body23.newObject("PartDesign::Pad", "Pad022")
pad23.Profile = sketch23
pad23.Length = Q("0.0625 in")
pad23.Reversed = True
body24 = doc.addObject("PartDesign::Body", "Body023")

# Sketch on XY plane
sketch24 = body24.newObject("Sketcher::SketchObject", "Sketch023")
sketch24.AttachmentSupport = (doc.getObject("XY_Plane023"), [""])
sketch24.MapMode = "FlatFace"
sketch24.AttachmentOffset = App.Placement(V(0, 0, -426.322781), App.Rotation())
add_polygon(sketch24, [(-468.283285, -597.801341), (-468.283285, -639.901841), (-776.573785, -639.901841), (-776.573785, -597.801341)])  # lines 0-3
sketch24.addConstraint([
    Sketcher.Constraint("Vertical", 0),
    Sketcher.Constraint("Horizontal", 1),
    Sketcher.Constraint("Vertical", 2),
    Sketcher.Constraint("Horizontal", 3),
    Sketcher.Constraint("DistanceY", 0, 2, 0, 1, Q("1.6575 in")),
    Sketcher.Constraint("DistanceX", 1, 2, 1, 1, Q("308.2905 mm")),
    Sketcher.Constraint("DistanceY", 0, 2, -1, 1, Q("639.901841 mm")),
    Sketcher.Constraint("DistanceX", 0, 2, -1, 1, Q("468.283285 mm")),
])
pad24 = body24.newObject("PartDesign::Pad", "Pad023")
pad24.Profile = sketch24
pad24.Length = Q("0.0625 in")
pad24.Reversed = True
body25 = doc.addObject("PartDesign::Body", "Body024")

# Sketch on XY plane
sketch25 = body25.newObject("Sketcher::SketchObject", "Sketch024")
sketch25.AttachmentSupport = (doc.getObject("XY_Plane024"), [""])
sketch25.MapMode = "FlatFace"
sketch25.AttachmentOffset = App.Placement(V(0, 0, -426.322781), App.Rotation())
add_polygon(sketch25, [(333.716715, -597.801341), (333.716715, -639.901841), (-306.358285, -639.901841), (-306.358285, -597.801341)])  # lines 0-3
sketch25.addConstraint([
    Sketcher.Constraint("Vertical", 0),
    Sketcher.Constraint("Horizontal", 1),
    Sketcher.Constraint("Vertical", 2),
    Sketcher.Constraint("Horizontal", 3),
    Sketcher.Constraint("DistanceY", 0, 2, 0, 1, Q("1.6575 in")),
    Sketcher.Constraint("DistanceX", 1, 2, 1, 1, Q("640.075 mm")),
    Sketcher.Constraint("DistanceY", 0, 2, -1, 1, Q("639.901841 mm")),
    Sketcher.Constraint("DistanceX", -1, 1, 0, 2, Q("333.716715 mm")),
])
pad25 = body25.newObject("PartDesign::Pad", "Pad024")
pad25.Profile = sketch25
pad25.Length = Q("0.0625 in")
pad25.Reversed = True
body26 = doc.addObject("PartDesign::Body", "Body025")

# Sketch on XY plane
sketch26 = body26.newObject("Sketcher::SketchObject", "Sketch025")
sketch26.AttachmentSupport = (doc.getObject("XY_Plane025"), [""])
sketch26.MapMode = "FlatFace"
sketch26.AttachmentOffset = App.Placement(V(0, 0, -426.322781), App.Rotation())
add_polygon(sketch26, [(803.932215, -597.801341), (803.932215, -639.901841), (495.641715, -639.901841), (495.641715, -597.801341)])  # lines 0-3
sketch26.addConstraint([
    Sketcher.Constraint("Vertical", 0),
    Sketcher.Constraint("Horizontal", 1),
    Sketcher.Constraint("Vertical", 2),
    Sketcher.Constraint("Horizontal", 3),
    Sketcher.Constraint("DistanceY", 0, 2, 0, 1, Q("1.6575 in")),
    Sketcher.Constraint("DistanceX", 1, 2, 1, 1, Q("308.2905 mm")),
    Sketcher.Constraint("DistanceY", 0, 2, -1, 1, Q("639.901841 mm")),
    Sketcher.Constraint("DistanceX", -1, 1, 0, 2, Q("803.932215 mm")),
])
pad26 = body26.newObject("PartDesign::Pad", "Pad025")
pad26.Profile = sketch26
pad26.Length = Q("0.0625 in")
pad26.Reversed = True
body27 = doc.addObject("PartDesign::Body", "Body026")

# Sketch on XY plane
sketch27 = body27.newObject("Sketcher::SketchObject", "Sketch026")
sketch27.AttachmentSupport = (doc.getObject("XY_Plane026"), [""])
sketch27.MapMode = "FlatFace"
sketch27.AttachmentOffset = App.Placement(V(0, 0, -426.322781), App.Rotation())
add_polygon(sketch27, [(959.729465, 495.401409), (959.729465, 238.288909), (917.628965, 238.288909), (917.628965, 495.401409)])  # lines 0-3
sketch27.addConstraint([
    Sketcher.Constraint("Vertical", 0),
    Sketcher.Constraint("Horizontal", 1),
    Sketcher.Constraint("Vertical", 2),
    Sketcher.Constraint("Horizontal", 3),
    Sketcher.Constraint("DistanceX", 1, 2, 1, 1, Q("1.6575 in")),
    Sketcher.Constraint("DistanceY", 0, 2, 0, 1, Q("257.1125 mm")),
    Sketcher.Constraint("DistanceY", -1, 1, 0, 2, Q("238.288909 mm")),
    Sketcher.Constraint("DistanceX", -1, 1, 0, 2, Q("959.729465 mm")),
])
pad27 = body27.newObject("PartDesign::Pad", "Pad026")
pad27.Profile = sketch27
pad27.Length = Q("0.0625 in")
pad27.Reversed = True
body28 = doc.addObject("PartDesign::Body", "Body027")

# Sketch on XY plane
sketch28 = body28.newObject("Sketcher::SketchObject", "Sketch027")
sketch28.AttachmentSupport = (doc.getObject("XY_Plane027"), [""])
sketch28.MapMode = "FlatFace"
sketch28.AttachmentOffset = App.Placement(V(0, 0, -426.322781), App.Rotation())
add_polygon(sketch28, [(959.729465, 76.363909), (959.729465, -484.104591), (917.628965, -484.104591), (917.628965, 76.363909)])  # lines 0-3
sketch28.addConstraint([
    Sketcher.Constraint("Vertical", 0),
    Sketcher.Constraint("Horizontal", 1),
    Sketcher.Constraint("Vertical", 2),
    Sketcher.Constraint("Horizontal", 3),
    Sketcher.Constraint("DistanceX", 1, 2, 1, 1, Q("1.6575 in")),
    Sketcher.Constraint("DistanceY", 0, 2, 0, 1, Q("560.4685 mm")),
    Sketcher.Constraint("DistanceY", 0, 2, -1, 1, Q("484.104591 mm")),
    Sketcher.Constraint("DistanceX", -1, 1, 0, 2, Q("959.729465 mm")),
])
pad28 = body28.newObject("PartDesign::Pad", "Pad027")
pad28.Profile = sketch28
pad28.Length = Q("0.0625 in")
pad28.Reversed = True
body29 = doc.addObject("PartDesign::Body", "Body028")

# Sketch on XZ plane
sketch29 = body29.newObject("Sketcher::SketchObject", "Sketch028")
sketch29.AttachmentSupport = (doc.getObject("XZ_Plane028"), [""])
sketch29.MapMode = "FlatFace"
sketch29.AttachmentOffset = App.Placement(V(0, 0, -657.326409), App.Rotation())
add_polygon(sketch29, [(-776.573785, -420.195031), (-776.573785, -378.094531), (803.932215, -378.094531), (803.932215, -420.195031)])  # lines 0-3
sketch29.addConstraint([
    Sketcher.Constraint("Vertical", 0),
    Sketcher.Constraint("Horizontal", 1),
    Sketcher.Constraint("Vertical", 2),
    Sketcher.Constraint("Horizontal", 3),
    Sketcher.Constraint("DistanceY", 0, 1, 0, 2, Q("1.6575 in")),
    Sketcher.Constraint("DistanceX", 1, 1, 1, 2, Q("1580.506 mm")),
    Sketcher.Constraint("DistanceY", 0, 2, -1, 1, Q("378.094531 mm")),
    Sketcher.Constraint("DistanceX", 0, 2, -1, 1, Q("776.573785 mm")),
])
pad29 = body29.newObject("PartDesign::Pad", "Pad028")
pad29.Profile = sketch29
pad29.Length = Q("0.0625 in")
pad29.Reversed = True
body30 = doc.addObject("PartDesign::Body", "Body029")

# Sketch on XZ plane
sketch30 = body30.newObject("Sketcher::SketchObject", "Sketch029")
sketch30.AttachmentSupport = (doc.getObject("XZ_Plane029"), [""])
sketch30.MapMode = "FlatFace"
sketch30.AttachmentOffset = App.Placement(V(0, 0, -657.326409), App.Rotation())
add_polygon(sketch30, [(917.628965, -264.397781), (917.628965, 242.286219), (959.729465, 242.286219), (959.729465, -264.397781)])  # lines 0-3
sketch30.addConstraint([
    Sketcher.Constraint("Vertical", 0),
    Sketcher.Constraint("Horizontal", 1),
    Sketcher.Constraint("Vertical", 2),
    Sketcher.Constraint("Horizontal", 3),
    Sketcher.Constraint("DistanceX", 1, 1, 1, 2, Q("1.6575 in")),
    Sketcher.Constraint("DistanceY", 0, 1, 0, 2, Q("506.684 mm")),
    Sketcher.Constraint("DistanceY", -1, 1, 0, 2, Q("242.286219 mm")),
    Sketcher.Constraint("DistanceX", -1, 1, 0, 2, Q("917.628965 mm")),
])
pad30 = body30.newObject("PartDesign::Pad", "Pad029")
pad30.Profile = sketch30
pad30.Length = Q("0.0625 in")
pad30.Reversed = True
body31 = doc.addObject("PartDesign::Body", "Body030")

# Sketch on XZ plane
sketch31 = body31.newObject("Sketcher::SketchObject", "Sketch030")
sketch31.AttachmentSupport = (doc.getObject("XZ_Plane030"), [""])
sketch31.MapMode = "FlatFace"
sketch31.AttachmentOffset = App.Placement(V(0, 0, -657.326409), App.Rotation())
add_polygon(sketch31, [(-776.573785, 355.982969), (-776.573785, 398.083469), (803.932215, 398.083469), (803.932215, 355.982969)])  # lines 0-3
sketch31.addConstraint([
    Sketcher.Constraint("Vertical", 0),
    Sketcher.Constraint("Horizontal", 1),
    Sketcher.Constraint("Vertical", 2),
    Sketcher.Constraint("Horizontal", 3),
    Sketcher.Constraint("DistanceY", 0, 1, 0, 2, Q("1.6575 in")),
    Sketcher.Constraint("DistanceX", 1, 1, 1, 2, Q("1580.506 mm")),
    Sketcher.Constraint("DistanceY", -1, 1, 0, 2, Q("398.083469 mm")),
    Sketcher.Constraint("DistanceX", 0, 2, -1, 1, Q("776.573785 mm")),
])
pad31 = body31.newObject("PartDesign::Pad", "Pad030")
pad31.Profile = sketch31
pad31.Length = Q("0.0625 in")
pad31.Reversed = True
body32 = doc.addObject("PartDesign::Body", "Body031")

# Sketch on XZ plane
sketch32 = body32.newObject("Sketcher::SketchObject", "Sketch031")
sketch32.AttachmentSupport = (doc.getObject("XZ_Plane031"), [""])
sketch32.MapMode = "FlatFace"
sketch32.AttachmentOffset = App.Placement(V(0, 0, -657.326409), App.Rotation())
add_polygon(sketch32, [(-932.371035, -264.397781), (-932.371035, 242.286219), (-890.270535, 242.286219), (-890.270535, -264.397781)])  # lines 0-3
sketch32.addConstraint([
    Sketcher.Constraint("Vertical", 0),
    Sketcher.Constraint("Horizontal", 1),
    Sketcher.Constraint("Vertical", 2),
    Sketcher.Constraint("Horizontal", 3),
    Sketcher.Constraint("DistanceX", 1, 1, 1, 2, Q("1.6575 in")),
    Sketcher.Constraint("DistanceY", 0, 1, 0, 2, Q("506.684 mm")),
    Sketcher.Constraint("DistanceY", -1, 1, 0, 2, Q("242.286219 mm")),
    Sketcher.Constraint("DistanceX", 0, 2, -1, 1, Q("932.371035 mm")),
])
pad32 = body32.newObject("PartDesign::Pad", "Pad031")
pad32.Profile = sketch32
pad32.Length = Q("0.0625 in")
pad32.Reversed = True
body33 = doc.addObject("PartDesign::Body", "Body032")

# Sketch on XZ plane
sketch33 = body33.newObject("Sketcher::SketchObject", "Sketch032")
sketch33.AttachmentSupport = (doc.getObject("XZ_Plane032"), [""])
sketch33.MapMode = "FlatFace"
sketch33.AttachmentOffset = App.Placement(V(0, 0, 646.029591), App.Rotation())
add_polygon(sketch33, [(-776.573785, 398.083469), (-776.573785, 355.982969), (-774.500785, 355.982969), (-774.500785, 398.083469)])  # lines 0-3
sketch33.addConstraint([
    Sketcher.Constraint("Vertical", 0),
    Sketcher.Constraint("Horizontal", 1),
    Sketcher.Constraint("Vertical", 2),
    Sketcher.Constraint("Horizontal", 3),
    Sketcher.Constraint("DistanceY", 0, 2, 0, 1, Q("1.6575 in")),
    Sketcher.Constraint("DistanceX", 1, 1, 1, 2, Q("2.073 mm")),
    Sketcher.Constraint("DistanceY", -1, 1, 0, 2, Q("355.982969 mm")),
    Sketcher.Constraint("DistanceX", 0, 2, -1, 1, Q("776.573785 mm")),
])
pad33 = body33.newObject("PartDesign::Pad", "Pad032")
pad33.Profile = sketch33
pad33.Length = 2.36
body34 = doc.addObject("PartDesign::Body", "Body033")

# Sketch on XZ plane
sketch34 = body34.newObject("Sketcher::SketchObject", "Sketch033")
sketch34.AttachmentSupport = (doc.getObject("XZ_Plane033"), [""])
sketch34.MapMode = "FlatFace"
sketch34.AttachmentOffset = App.Placement(V(0, 0, 646.029591), App.Rotation())
add_polygon(sketch34, [(-648.140785, 398.083469), (-648.140785, 355.982969), (675.499215, 355.982969), (675.499215, 398.083469)])  # lines 0-3
sketch34.addConstraint([
    Sketcher.Constraint("Vertical", 0),
    Sketcher.Constraint("Horizontal", 1),
    Sketcher.Constraint("Vertical", 2),
    Sketcher.Constraint("Horizontal", 3),
    Sketcher.Constraint("DistanceY", 0, 2, 0, 1, Q("1.6575 in")),
    Sketcher.Constraint("DistanceX", 1, 1, 1, 2, Q("1323.64 mm")),
    Sketcher.Constraint("DistanceY", -1, 1, 0, 2, Q("355.982969 mm")),
    Sketcher.Constraint("DistanceX", 0, 2, -1, 1, Q("648.140785 mm")),
])
pad34 = body34.newObject("PartDesign::Pad", "Pad033")
pad34.Profile = sketch34
pad34.Length = 2.36
body35 = doc.addObject("PartDesign::Body", "Body034")

# Sketch on XZ plane
sketch35 = body35.newObject("Sketcher::SketchObject", "Sketch034")
sketch35.AttachmentSupport = (doc.getObject("XZ_Plane034"), [""])
sketch35.MapMode = "FlatFace"
sketch35.AttachmentOffset = App.Placement(V(0, 0, 646.029591), App.Rotation())
add_polygon(sketch35, [(801.859215, 398.083469), (801.859215, 355.982969), (803.932215, 355.982969), (803.932215, 398.083469)])  # lines 0-3
sketch35.addConstraint([
    Sketcher.Constraint("Vertical", 0),
    Sketcher.Constraint("Horizontal", 1),
    Sketcher.Constraint("Vertical", 2),
    Sketcher.Constraint("Horizontal", 3),
    Sketcher.Constraint("DistanceY", 0, 2, 0, 1, Q("1.6575 in")),
    Sketcher.Constraint("DistanceX", 1, 1, 1, 2, Q("2.073 mm")),
    Sketcher.Constraint("DistanceY", -1, 1, 0, 2, Q("355.982969 mm")),
    Sketcher.Constraint("DistanceX", -1, 1, 0, 2, Q("801.859215 mm")),
])
pad35 = body35.newObject("PartDesign::Pad", "Pad034")
pad35.Profile = sketch35
pad35.Length = 2.36
body36 = doc.addObject("PartDesign::Body", "Body035")

# Sketch on XZ plane
sketch36 = body36.newObject("Sketcher::SketchObject", "Sketch035")
sketch36.AttachmentSupport = (doc.getObject("XZ_Plane035"), [""])
sketch36.MapMode = "FlatFace"
sketch36.AttachmentOffset = App.Placement(V(0, 0, 646.029591), App.Rotation())
add_polygon(sketch36, [(917.628965, 242.286219), (917.628965, -264.397781), (959.729465, -264.397781), (959.729465, 242.286219)])  # lines 0-3
sketch36.addConstraint([
    Sketcher.Constraint("Vertical", 0),
    Sketcher.Constraint("Horizontal", 1),
    Sketcher.Constraint("Vertical", 2),
    Sketcher.Constraint("Horizontal", 3),
    Sketcher.Constraint("DistanceX", 1, 1, 1, 2, Q("1.6575 in")),
    Sketcher.Constraint("DistanceY", 0, 2, 0, 1, Q("506.684 mm")),
    Sketcher.Constraint("DistanceY", 0, 2, -1, 1, Q("264.397781 mm")),
    Sketcher.Constraint("DistanceX", -1, 1, 0, 2, Q("917.628965 mm")),
])
pad36 = body36.newObject("PartDesign::Pad", "Pad035")
pad36.Profile = sketch36
pad36.Length = 2.36
body37 = doc.addObject("PartDesign::Body", "Body036")

# Sketch on XZ plane
sketch37 = body37.newObject("Sketcher::SketchObject", "Sketch036")
sketch37.AttachmentSupport = (doc.getObject("XZ_Plane036"), [""])
sketch37.MapMode = "FlatFace"
sketch37.AttachmentOffset = App.Placement(V(0, 0, 646.029591), App.Rotation())
add_polygon(sketch37, [(801.859215, -378.094531), (801.859215, -420.195031), (803.932215, -420.195031), (803.932215, -378.094531)])  # lines 0-3
sketch37.addConstraint([
    Sketcher.Constraint("Vertical", 0),
    Sketcher.Constraint("Horizontal", 1),
    Sketcher.Constraint("Vertical", 2),
    Sketcher.Constraint("Horizontal", 3),
    Sketcher.Constraint("DistanceY", 0, 2, 0, 1, Q("1.6575 in")),
    Sketcher.Constraint("DistanceX", 1, 1, 1, 2, Q("2.073 mm")),
    Sketcher.Constraint("DistanceY", 0, 2, -1, 1, Q("420.195031 mm")),
    Sketcher.Constraint("DistanceX", -1, 1, 0, 2, Q("801.859215 mm")),
])
pad37 = body37.newObject("PartDesign::Pad", "Pad036")
pad37.Profile = sketch37
pad37.Length = 2.36
body38 = doc.addObject("PartDesign::Body", "Body037")

# Sketch on XZ plane
sketch38 = body38.newObject("Sketcher::SketchObject", "Sketch037")
sketch38.AttachmentSupport = (doc.getObject("XZ_Plane037"), [""])
sketch38.MapMode = "FlatFace"
sketch38.AttachmentOffset = App.Placement(V(0, 0, 646.029591), App.Rotation())
add_polygon(sketch38, [(-648.140785, -378.094531), (-648.140785, -420.195031), (675.499215, -420.195031), (675.499215, -378.094531)])  # lines 0-3
sketch38.addConstraint([
    Sketcher.Constraint("Vertical", 0),
    Sketcher.Constraint("Horizontal", 1),
    Sketcher.Constraint("Vertical", 2),
    Sketcher.Constraint("Horizontal", 3),
    Sketcher.Constraint("DistanceY", 0, 2, 0, 1, Q("1.6575 in")),
    Sketcher.Constraint("DistanceX", 1, 1, 1, 2, Q("1323.64 mm")),
    Sketcher.Constraint("DistanceY", 0, 2, -1, 1, Q("420.195031 mm")),
    Sketcher.Constraint("DistanceX", 0, 2, -1, 1, Q("648.140785 mm")),
])
pad38 = body38.newObject("PartDesign::Pad", "Pad037")
pad38.Profile = sketch38
pad38.Length = 2.36
body39 = doc.addObject("PartDesign::Body", "Body038")

# Sketch on XZ plane
sketch39 = body39.newObject("Sketcher::SketchObject", "Sketch038")
sketch39.AttachmentSupport = (doc.getObject("XZ_Plane038"), [""])
sketch39.MapMode = "FlatFace"
sketch39.AttachmentOffset = App.Placement(V(0, 0, 646.029591), App.Rotation())
add_polygon(sketch39, [(-776.573785, -378.094531), (-776.573785, -420.195031), (-774.500785, -420.195031), (-774.500785, -378.094531)])  # lines 0-3
sketch39.addConstraint([
    Sketcher.Constraint("Vertical", 0),
    Sketcher.Constraint("Horizontal", 1),
    Sketcher.Constraint("Vertical", 2),
    Sketcher.Constraint("Horizontal", 3),
    Sketcher.Constraint("DistanceY", 0, 2, 0, 1, Q("1.6575 in")),
    Sketcher.Constraint("DistanceX", 1, 1, 1, 2, Q("2.073 mm")),
    Sketcher.Constraint("DistanceY", 0, 2, -1, 1, Q("420.195031 mm")),
    Sketcher.Constraint("DistanceX", 0, 2, -1, 1, Q("776.573785 mm")),
])
pad39 = body39.newObject("PartDesign::Pad", "Pad038")
pad39.Profile = sketch39
pad39.Length = 2.36
body40 = doc.addObject("PartDesign::Body", "Body039")

# Sketch on XZ plane
sketch40 = body40.newObject("Sketcher::SketchObject", "Sketch039")
sketch40.AttachmentSupport = (doc.getObject("XZ_Plane039"), [""])
sketch40.MapMode = "FlatFace"
sketch40.AttachmentOffset = App.Placement(V(0, 0, 646.029591), App.Rotation())
add_polygon(sketch40, [(-932.371035, 242.286219), (-932.371035, -264.397781), (-890.270535, -264.397781), (-890.270535, 242.286219)])  # lines 0-3
sketch40.addConstraint([
    Sketcher.Constraint("Vertical", 0),
    Sketcher.Constraint("Horizontal", 1),
    Sketcher.Constraint("Vertical", 2),
    Sketcher.Constraint("Horizontal", 3),
    Sketcher.Constraint("DistanceX", 1, 1, 1, 2, Q("1.6575 in")),
    Sketcher.Constraint("DistanceY", 0, 2, 0, 1, Q("506.684 mm")),
    Sketcher.Constraint("DistanceY", 0, 2, -1, 1, Q("264.397781 mm")),
    Sketcher.Constraint("DistanceX", 0, 2, -1, 1, Q("932.371035 mm")),
])
pad40 = body40.newObject("PartDesign::Pad", "Pad039")
pad40.Profile = sketch40
pad40.Length = 2.36

doc.recompute()
